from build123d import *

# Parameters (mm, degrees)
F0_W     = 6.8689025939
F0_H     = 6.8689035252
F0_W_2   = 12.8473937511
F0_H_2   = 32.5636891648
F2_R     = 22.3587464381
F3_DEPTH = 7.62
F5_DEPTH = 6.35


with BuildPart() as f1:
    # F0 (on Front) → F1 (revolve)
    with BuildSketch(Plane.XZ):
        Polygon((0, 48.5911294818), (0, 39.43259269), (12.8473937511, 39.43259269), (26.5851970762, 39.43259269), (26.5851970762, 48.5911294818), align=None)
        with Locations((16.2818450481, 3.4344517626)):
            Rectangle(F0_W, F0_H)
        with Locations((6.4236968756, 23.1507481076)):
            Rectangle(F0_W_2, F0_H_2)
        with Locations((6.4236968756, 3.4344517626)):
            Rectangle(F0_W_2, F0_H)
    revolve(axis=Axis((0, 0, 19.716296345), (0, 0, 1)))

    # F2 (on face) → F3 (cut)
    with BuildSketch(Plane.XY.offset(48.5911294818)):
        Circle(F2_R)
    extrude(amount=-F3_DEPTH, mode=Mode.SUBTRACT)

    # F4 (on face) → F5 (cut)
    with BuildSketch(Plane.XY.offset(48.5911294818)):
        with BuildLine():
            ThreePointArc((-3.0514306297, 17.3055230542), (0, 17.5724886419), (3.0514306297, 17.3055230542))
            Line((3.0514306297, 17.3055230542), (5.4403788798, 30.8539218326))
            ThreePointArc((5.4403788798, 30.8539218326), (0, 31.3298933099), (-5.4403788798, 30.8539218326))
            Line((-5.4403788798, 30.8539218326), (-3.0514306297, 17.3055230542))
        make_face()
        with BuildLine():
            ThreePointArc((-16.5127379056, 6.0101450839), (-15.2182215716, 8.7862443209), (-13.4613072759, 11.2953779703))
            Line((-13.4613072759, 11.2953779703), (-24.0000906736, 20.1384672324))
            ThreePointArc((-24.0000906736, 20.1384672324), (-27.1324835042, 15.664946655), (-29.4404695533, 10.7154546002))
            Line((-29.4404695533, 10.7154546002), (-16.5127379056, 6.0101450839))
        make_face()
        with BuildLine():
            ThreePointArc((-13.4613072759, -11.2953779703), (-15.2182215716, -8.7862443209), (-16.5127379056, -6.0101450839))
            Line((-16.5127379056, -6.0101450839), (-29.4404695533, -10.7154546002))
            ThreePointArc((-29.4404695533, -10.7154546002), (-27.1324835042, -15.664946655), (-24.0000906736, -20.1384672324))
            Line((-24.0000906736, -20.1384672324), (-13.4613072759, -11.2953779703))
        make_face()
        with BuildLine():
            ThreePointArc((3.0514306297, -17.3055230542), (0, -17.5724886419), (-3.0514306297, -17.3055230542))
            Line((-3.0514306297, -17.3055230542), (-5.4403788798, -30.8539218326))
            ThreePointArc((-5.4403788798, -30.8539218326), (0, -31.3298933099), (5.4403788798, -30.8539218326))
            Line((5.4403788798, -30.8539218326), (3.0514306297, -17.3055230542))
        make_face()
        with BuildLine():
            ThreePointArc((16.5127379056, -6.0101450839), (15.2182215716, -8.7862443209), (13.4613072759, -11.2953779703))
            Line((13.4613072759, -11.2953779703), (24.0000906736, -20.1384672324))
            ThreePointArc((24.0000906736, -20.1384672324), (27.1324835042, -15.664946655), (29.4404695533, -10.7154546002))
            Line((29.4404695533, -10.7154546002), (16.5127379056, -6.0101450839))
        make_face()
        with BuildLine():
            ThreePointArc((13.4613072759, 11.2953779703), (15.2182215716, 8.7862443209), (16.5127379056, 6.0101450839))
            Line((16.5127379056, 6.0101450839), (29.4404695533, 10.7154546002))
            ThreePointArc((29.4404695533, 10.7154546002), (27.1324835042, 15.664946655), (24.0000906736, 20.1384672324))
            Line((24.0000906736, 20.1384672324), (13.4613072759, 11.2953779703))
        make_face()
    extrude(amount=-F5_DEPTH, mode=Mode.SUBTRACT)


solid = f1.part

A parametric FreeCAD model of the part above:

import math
import FreeCAD as App
import Part
import Sketcher
Q = App.Units.Quantity


def add_polygon(sketch, points):
    """Adds a closed chain of lines whose ends are joined by coincident constraints."""
    first, n = sketch.GeometryCount, len(points)
    for a, b in zip(points, points[1:] + points[:1]):
        sketch.addGeometry(Part.LineSegment(App.Vector(*a, 0), App.Vector(*b, 0)), False)
    for i in range(n):
        sketch.addConstraint(Sketcher.Constraint("Coincident", first + i, 2, first + (i + 1) % n, 1))

doc = App.newDocument("Part")
body = doc.addObject("PartDesign::Body", "Body")

# Sketch on XZ plane
sketch1 = body.newObject("Sketcher::SketchObject", "Sketch")
sketch1.AttachmentSupport = (doc.getObject("XZ_Plane"), [""])
sketch1.MapMode = "FlatFace"
add_polygon(sketch1, [(0, 49), (0, 7), (0, 0), (20, 0), (20, 7), (13, 7), (13, 39), (27, 39), (27, 49)])  # lines 0-8
sketch1.addConstraint([
    Sketcher.Constraint("Vertical", 0),
    Sketcher.Constraint("Vertical", 1),
    Sketcher.Constraint("Horizontal", 2),
    Sketcher.Constraint("Vertical", 3),
    Sketcher.Constraint("Horizontal", 4),
    Sketcher.Constraint("Vertical", 5),
    Sketcher.Constraint("Horizontal", 6),
    Sketcher.Constraint("Vertical", 7),
    Sketcher.Constraint("Horizontal", 8),
    Sketcher.Constraint("Coincident", 1, 2, -1, 1),
    Sketcher.Constraint("Horizontal", 0, 2, 3, 2),
    Sketcher.Constraint("Equal", 4, 1),
    Sketcher.Constraint("DistanceY", 5, 1, 5, 2, 32.563689),
    Sketcher.Constraint("DistanceX", 3, 2, 6, 2, 6.868901),
    Sketcher.Constraint("DistanceX", 2, 1, 2, 2, 19.716296),
    Sketcher.Constraint("DistanceX", 4, 2, 4, 1, 6.868903),
    Sketcher.Constraint("DistanceY", 0, 2, 0, 1, 41.722226),
])
revolution = body.newObject("PartDesign::Revolution", "Revolution")
revolution.Profile = sketch1
revolution.ReferenceAxis = (sketch1, ["V_Axis"])
revolution.Angle = 360

# Sketch on XY plane
sketch2 = body.newObject("Sketcher::SketchObject", "Sketch001")
sketch2.AttachmentSupport = (doc.getObject("XY_Plane"), [""])
sketch2.MapMode = "FlatFace"
sketch2.AttachmentOffset = App.Placement(App.Vector(0, 0, 48.591129), App.Rotation())
sketch2.addGeometry(Part.Circle(App.Vector(0, 0, 0), App.Vector(0, 0, 1), 22), False)
sketch2.addConstraint([
    Sketcher.Constraint("Coincident", 0, 3, -1, 1),
    Sketcher.Constraint("Diameter", 0, 44.717493),
])
pocket1 = body.newObject("PartDesign::Pocket", "Pocket")
pocket1.Profile = sketch2
pocket1.Length = Q("0.3 in")

# Sketch on XY plane
sketch3 = body.newObject("Sketcher::SketchObject", "Sketch002")
sketch3.AttachmentSupport = (doc.getObject("XY_Plane"), [""])
sketch3.MapMode = "FlatFace"
sketch3.AttachmentOffset = App.Placement(App.Vector(0, 0, 48.591129), App.Rotation())
sketch3.addGeometry([
    Part.ArcOfCircle(Part.Circle(App.Vector(0, 0, 0), App.Vector(0, 0, 1), 18), math.radians(80), math.radians(100)),  # 0
    Part.LineSegment(App.Vector(3, 17, 0), App.Vector(5, 31, 0)),  # 1
    Part.ArcOfCircle(Part.Circle(App.Vector(0, 0, 0), App.Vector(0, 0, 1), 31), math.radians(80), math.radians(100)),  # 2
    Part.LineSegment(App.Vector(-5, 31, 0), App.Vector(-3, 17, 0)),  # 3
    Part.ArcOfCircle(Part.Circle(App.Vector(0, 0, 0), App.Vector(0, 0, 1), 18), math.radians(140), math.radians(160)),  # 4
    Part.LineSegment(App.Vector(-13, 11, 0), App.Vector(-24, 20, 0)),  # 5
    Part.ArcOfCircle(Part.Circle(App.Vector(0, 0, 0), App.Vector(0, 0, 1), 31), math.radians(140), math.radians(160)),  # 6
    Part.LineSegment(App.Vector(-29, 11, 0), App.Vector(-17, 6, 0)),  # 7
    Part.ArcOfCircle(Part.Circle(App.Vector(0, 0, 0), App.Vector(0, 0, 1), 18), math.radians(-160), math.radians(-140)),  # 8
    Part.LineSegment(App.Vector(-17, -6, 0), App.Vector(-29, -11, 0)),  # 9
    Part.ArcOfCircle(Part.Circle(App.Vector(0, 0, 0), App.Vector(0, 0, 1), 31), math.radians(-160), math.radians(-140)),  # 10
    Part.LineSegment(App.Vector(-24, -20, 0), App.Vector(-13, -11, 0)),  # 11
    Part.ArcOfCircle(Part.Circle(App.Vector(0, 0, 0), App.Vector(0, 0, 1), 18), math.radians(-100), math.radians(-80)),  # 12
    Part.LineSegment(App.Vector(-3, -17, 0), App.Vector(-5, -31, 0)),  # 13
    Part.ArcOfCircle(Part.Circle(App.Vector(0, 0, 0), App.Vector(0, 0, 1), 31), math.radians(-100), math.radians(-80)),  # 14
    Part.LineSegment(App.Vector(5, -31, 0), App.Vector(3, -17, 0)),  # 15
    Part.ArcOfCircle(Part.Circle(App.Vector(0, 0, 0), App.Vector(0, 0, 1), 18), math.radians(-40), math.radians(-20)),  # 16
    Part.LineSegment(App.Vector(13, -11, 0), App.Vector(24, -20, 0)),  # 17
    Part.ArcOfCircle(Part.Circle(App.Vector(0, 0, 0), App.Vector(0, 0, 1), 31), math.radians(-40), math.radians(-20)),  # 18
    Part.LineSegment(App.Vector(29, -11, 0), App.Vector(17, -6, 0)),  # 19
    Part.ArcOfCircle(Part.Circle(App.Vector(0, 0, 0), App.Vector(0, 0, 1), 18), math.radians(20), math.radians(40)),  # 20
    Part.LineSegment(App.Vector(17, 6, 0), App.Vector(29, 11, 0)),  # 21
    Part.ArcOfCircle(Part.Circle(App.Vector(0, 0, 0), App.Vector(0, 0, 1), 31), math.radians(20), math.radians(40)),  # 22
    Part.LineSegment(App.Vector(24, 20, 0), App.Vector(13, 11, 0)),  # 23
], False)
sketch3.addConstraint([
    Sketcher.Constraint("Coincident", 0, 1, 1, 1),
    Sketcher.Constraint("Coincident", 1, 2, 2, 1),
    Sketcher.Constraint("Coincident", 2, 2, 3, 1),
    Sketcher.Constraint("Coincident", 3, 2, 0, 2),
    Sketcher.Constraint("Coincident", 4, 1, 5, 1),
    Sketcher.Constraint("Coincident", 5, 2, 6, 1),
    Sketcher.Constraint("Coincident", 6, 2, 7, 1),
    Sketcher.Constraint("Coincident", 7, 2, 4, 2),
    Sketcher.Constraint("Coincident", 8, 1, 9, 1),
    Sketcher.Constraint("Coincident", 9, 2, 10, 1),
    Sketcher.Constraint("Coincident", 10, 2, 11, 1),
    Sketcher.Constraint("Coincident", 11, 2, 8, 2),
    Sketcher.Constraint("Coincident", 12, 1, 13, 1),
    Sketcher.Constraint("Coincident", 13, 2, 14, 1),
    Sketcher.Constraint("Coincident", 14, 2, 15, 1),
    Sketcher.Constraint("Coincident", 15, 2, 12, 2),
    Sketcher.Constraint("Coincident", 16, 1, 17, 1),
    Sketcher.Constraint("Coincident", 17, 2, 18, 1),
    Sketcher.Constraint("Coincident", 18, 2, 19, 1),
    Sketcher.Constraint("Coincident", 19, 2, 16, 2),
    Sketcher.Constraint("Coincident", 20, 1, 21, 1),
    Sketcher.Constraint("Coincident", 21, 2, 22, 1),
    Sketcher.Constraint("Coincident", 22, 2, 23, 1),
    Sketcher.Constraint("Coincident", 23, 2, 20, 2),
    Sketcher.Constraint("Coincident", 0, 3, -1, 1),
    Sketcher.Constraint("Coincident", 2, 3, -1, 1),
    Sketcher.Constraint("Coincident", 4, 3, -1, 1),
    Sketcher.Constraint("Coincident", 6, 3, -1, 1),
    Sketcher.Constraint("Coincident", 8, 3, -1, 1),
    Sketcher.Constraint("Coincident", 10, 3, -1, 1),
    Sketcher.Constraint("Coincident", 12, 3, -1, 1),
    Sketcher.Constraint("Coincident", 14, 3, -1, 1),
    Sketcher.Constraint("Coincident", 16, 3, -1, 1),
    Sketcher.Constraint("Coincident", 18, 3, -1, 1),
    Sketcher.Constraint("Coincident", 20, 3, -1, 1),
    Sketcher.Constraint("Coincident", 22, 3, -1, 1),
    Sketcher.Constraint("Equal", 0, 4),
    Sketcher.Constraint("Equal", 2, 6),
    Sketcher.Constraint("Equal", 4, 8),
    Sketcher.Constraint("Equal", 6, 10),
    Sketcher.Constraint("Equal", 8, 12),
    Sketcher.Constraint("Equal", 10, 14),
    Sketcher.Constraint("Equal", 12, 16),
    Sketcher.Constraint("Equal", 14, 18),
    Sketcher.Constraint("Equal", 16, 20),
    Sketcher.Constraint("Equal", 18, 22),
    Sketcher.Constraint("Parallel", 1, 13),
    Sketcher.Constraint("Parallel", 3, 15),
    Sketcher.Constraint("Parallel", 5, 17),
    Sketcher.Constraint("Parallel", 7, 19),
    Sketcher.Constraint("Parallel", 9, 21),
    Sketcher.Constraint("Parallel", 11, 23),
    Sketcher.Constraint("Horizontal", 1, 2, 2, 2),
    Sketcher.Constraint("Horizontal", 0, 1, 3, 2),
    Sketcher.Constraint("Horizontal", 13, 2, 14, 2),
    Sketcher.Constraint("Horizontal", 11, 2, 16, 1),
    Sketcher.Constraint("Horizontal", 10, 2, 17, 2),
    Sketcher.Constraint("Horizontal", 9, 2, 18, 2),
    Sketcher.Constraint("Horizontal", 8, 1, 19, 2),
    Sketcher.Constraint("Horizontal", 7, 2, 20, 1),
    Sketcher.Constraint("Horizontal", 5, 2, 22, 2),
    Sketcher.Constraint("Vertical", 7, 2, 8, 1),
    Sketcher.Constraint("Vertical", 5, 2, 10, 2),
    Sketcher.Constraint("Vertical", 3, 2, 12, 1),
    Sketcher.Constraint("Angle", 1, Q("80 deg")),
    Sketcher.Constraint("Angle", 5, Q("140 deg")),
    Sketcher.Constraint("Angle", 7, Q("-20 deg")),
    Sketcher.Constraint("Radius", 0, 17.572489),
    Sketcher.Constraint("DistanceY", -1, 1, 4, 1, Q("0.4446999 in")),
    Sketcher.Constraint("Radius", 2, 31.329893),
    Sketcher.Constraint("DistanceY", 20, 1, 0, 1, Q("0.4446999 in")),
    Sketcher.Constraint("DistanceY", 9, 2, 7, 2, 16.7256),
])
pocket2 = body.newObject("PartDesign::Pocket", "Pocket001")
pocket2.Profile = sketch3
pocket2.Length = Q("0.25 in")

doc.recompute()
